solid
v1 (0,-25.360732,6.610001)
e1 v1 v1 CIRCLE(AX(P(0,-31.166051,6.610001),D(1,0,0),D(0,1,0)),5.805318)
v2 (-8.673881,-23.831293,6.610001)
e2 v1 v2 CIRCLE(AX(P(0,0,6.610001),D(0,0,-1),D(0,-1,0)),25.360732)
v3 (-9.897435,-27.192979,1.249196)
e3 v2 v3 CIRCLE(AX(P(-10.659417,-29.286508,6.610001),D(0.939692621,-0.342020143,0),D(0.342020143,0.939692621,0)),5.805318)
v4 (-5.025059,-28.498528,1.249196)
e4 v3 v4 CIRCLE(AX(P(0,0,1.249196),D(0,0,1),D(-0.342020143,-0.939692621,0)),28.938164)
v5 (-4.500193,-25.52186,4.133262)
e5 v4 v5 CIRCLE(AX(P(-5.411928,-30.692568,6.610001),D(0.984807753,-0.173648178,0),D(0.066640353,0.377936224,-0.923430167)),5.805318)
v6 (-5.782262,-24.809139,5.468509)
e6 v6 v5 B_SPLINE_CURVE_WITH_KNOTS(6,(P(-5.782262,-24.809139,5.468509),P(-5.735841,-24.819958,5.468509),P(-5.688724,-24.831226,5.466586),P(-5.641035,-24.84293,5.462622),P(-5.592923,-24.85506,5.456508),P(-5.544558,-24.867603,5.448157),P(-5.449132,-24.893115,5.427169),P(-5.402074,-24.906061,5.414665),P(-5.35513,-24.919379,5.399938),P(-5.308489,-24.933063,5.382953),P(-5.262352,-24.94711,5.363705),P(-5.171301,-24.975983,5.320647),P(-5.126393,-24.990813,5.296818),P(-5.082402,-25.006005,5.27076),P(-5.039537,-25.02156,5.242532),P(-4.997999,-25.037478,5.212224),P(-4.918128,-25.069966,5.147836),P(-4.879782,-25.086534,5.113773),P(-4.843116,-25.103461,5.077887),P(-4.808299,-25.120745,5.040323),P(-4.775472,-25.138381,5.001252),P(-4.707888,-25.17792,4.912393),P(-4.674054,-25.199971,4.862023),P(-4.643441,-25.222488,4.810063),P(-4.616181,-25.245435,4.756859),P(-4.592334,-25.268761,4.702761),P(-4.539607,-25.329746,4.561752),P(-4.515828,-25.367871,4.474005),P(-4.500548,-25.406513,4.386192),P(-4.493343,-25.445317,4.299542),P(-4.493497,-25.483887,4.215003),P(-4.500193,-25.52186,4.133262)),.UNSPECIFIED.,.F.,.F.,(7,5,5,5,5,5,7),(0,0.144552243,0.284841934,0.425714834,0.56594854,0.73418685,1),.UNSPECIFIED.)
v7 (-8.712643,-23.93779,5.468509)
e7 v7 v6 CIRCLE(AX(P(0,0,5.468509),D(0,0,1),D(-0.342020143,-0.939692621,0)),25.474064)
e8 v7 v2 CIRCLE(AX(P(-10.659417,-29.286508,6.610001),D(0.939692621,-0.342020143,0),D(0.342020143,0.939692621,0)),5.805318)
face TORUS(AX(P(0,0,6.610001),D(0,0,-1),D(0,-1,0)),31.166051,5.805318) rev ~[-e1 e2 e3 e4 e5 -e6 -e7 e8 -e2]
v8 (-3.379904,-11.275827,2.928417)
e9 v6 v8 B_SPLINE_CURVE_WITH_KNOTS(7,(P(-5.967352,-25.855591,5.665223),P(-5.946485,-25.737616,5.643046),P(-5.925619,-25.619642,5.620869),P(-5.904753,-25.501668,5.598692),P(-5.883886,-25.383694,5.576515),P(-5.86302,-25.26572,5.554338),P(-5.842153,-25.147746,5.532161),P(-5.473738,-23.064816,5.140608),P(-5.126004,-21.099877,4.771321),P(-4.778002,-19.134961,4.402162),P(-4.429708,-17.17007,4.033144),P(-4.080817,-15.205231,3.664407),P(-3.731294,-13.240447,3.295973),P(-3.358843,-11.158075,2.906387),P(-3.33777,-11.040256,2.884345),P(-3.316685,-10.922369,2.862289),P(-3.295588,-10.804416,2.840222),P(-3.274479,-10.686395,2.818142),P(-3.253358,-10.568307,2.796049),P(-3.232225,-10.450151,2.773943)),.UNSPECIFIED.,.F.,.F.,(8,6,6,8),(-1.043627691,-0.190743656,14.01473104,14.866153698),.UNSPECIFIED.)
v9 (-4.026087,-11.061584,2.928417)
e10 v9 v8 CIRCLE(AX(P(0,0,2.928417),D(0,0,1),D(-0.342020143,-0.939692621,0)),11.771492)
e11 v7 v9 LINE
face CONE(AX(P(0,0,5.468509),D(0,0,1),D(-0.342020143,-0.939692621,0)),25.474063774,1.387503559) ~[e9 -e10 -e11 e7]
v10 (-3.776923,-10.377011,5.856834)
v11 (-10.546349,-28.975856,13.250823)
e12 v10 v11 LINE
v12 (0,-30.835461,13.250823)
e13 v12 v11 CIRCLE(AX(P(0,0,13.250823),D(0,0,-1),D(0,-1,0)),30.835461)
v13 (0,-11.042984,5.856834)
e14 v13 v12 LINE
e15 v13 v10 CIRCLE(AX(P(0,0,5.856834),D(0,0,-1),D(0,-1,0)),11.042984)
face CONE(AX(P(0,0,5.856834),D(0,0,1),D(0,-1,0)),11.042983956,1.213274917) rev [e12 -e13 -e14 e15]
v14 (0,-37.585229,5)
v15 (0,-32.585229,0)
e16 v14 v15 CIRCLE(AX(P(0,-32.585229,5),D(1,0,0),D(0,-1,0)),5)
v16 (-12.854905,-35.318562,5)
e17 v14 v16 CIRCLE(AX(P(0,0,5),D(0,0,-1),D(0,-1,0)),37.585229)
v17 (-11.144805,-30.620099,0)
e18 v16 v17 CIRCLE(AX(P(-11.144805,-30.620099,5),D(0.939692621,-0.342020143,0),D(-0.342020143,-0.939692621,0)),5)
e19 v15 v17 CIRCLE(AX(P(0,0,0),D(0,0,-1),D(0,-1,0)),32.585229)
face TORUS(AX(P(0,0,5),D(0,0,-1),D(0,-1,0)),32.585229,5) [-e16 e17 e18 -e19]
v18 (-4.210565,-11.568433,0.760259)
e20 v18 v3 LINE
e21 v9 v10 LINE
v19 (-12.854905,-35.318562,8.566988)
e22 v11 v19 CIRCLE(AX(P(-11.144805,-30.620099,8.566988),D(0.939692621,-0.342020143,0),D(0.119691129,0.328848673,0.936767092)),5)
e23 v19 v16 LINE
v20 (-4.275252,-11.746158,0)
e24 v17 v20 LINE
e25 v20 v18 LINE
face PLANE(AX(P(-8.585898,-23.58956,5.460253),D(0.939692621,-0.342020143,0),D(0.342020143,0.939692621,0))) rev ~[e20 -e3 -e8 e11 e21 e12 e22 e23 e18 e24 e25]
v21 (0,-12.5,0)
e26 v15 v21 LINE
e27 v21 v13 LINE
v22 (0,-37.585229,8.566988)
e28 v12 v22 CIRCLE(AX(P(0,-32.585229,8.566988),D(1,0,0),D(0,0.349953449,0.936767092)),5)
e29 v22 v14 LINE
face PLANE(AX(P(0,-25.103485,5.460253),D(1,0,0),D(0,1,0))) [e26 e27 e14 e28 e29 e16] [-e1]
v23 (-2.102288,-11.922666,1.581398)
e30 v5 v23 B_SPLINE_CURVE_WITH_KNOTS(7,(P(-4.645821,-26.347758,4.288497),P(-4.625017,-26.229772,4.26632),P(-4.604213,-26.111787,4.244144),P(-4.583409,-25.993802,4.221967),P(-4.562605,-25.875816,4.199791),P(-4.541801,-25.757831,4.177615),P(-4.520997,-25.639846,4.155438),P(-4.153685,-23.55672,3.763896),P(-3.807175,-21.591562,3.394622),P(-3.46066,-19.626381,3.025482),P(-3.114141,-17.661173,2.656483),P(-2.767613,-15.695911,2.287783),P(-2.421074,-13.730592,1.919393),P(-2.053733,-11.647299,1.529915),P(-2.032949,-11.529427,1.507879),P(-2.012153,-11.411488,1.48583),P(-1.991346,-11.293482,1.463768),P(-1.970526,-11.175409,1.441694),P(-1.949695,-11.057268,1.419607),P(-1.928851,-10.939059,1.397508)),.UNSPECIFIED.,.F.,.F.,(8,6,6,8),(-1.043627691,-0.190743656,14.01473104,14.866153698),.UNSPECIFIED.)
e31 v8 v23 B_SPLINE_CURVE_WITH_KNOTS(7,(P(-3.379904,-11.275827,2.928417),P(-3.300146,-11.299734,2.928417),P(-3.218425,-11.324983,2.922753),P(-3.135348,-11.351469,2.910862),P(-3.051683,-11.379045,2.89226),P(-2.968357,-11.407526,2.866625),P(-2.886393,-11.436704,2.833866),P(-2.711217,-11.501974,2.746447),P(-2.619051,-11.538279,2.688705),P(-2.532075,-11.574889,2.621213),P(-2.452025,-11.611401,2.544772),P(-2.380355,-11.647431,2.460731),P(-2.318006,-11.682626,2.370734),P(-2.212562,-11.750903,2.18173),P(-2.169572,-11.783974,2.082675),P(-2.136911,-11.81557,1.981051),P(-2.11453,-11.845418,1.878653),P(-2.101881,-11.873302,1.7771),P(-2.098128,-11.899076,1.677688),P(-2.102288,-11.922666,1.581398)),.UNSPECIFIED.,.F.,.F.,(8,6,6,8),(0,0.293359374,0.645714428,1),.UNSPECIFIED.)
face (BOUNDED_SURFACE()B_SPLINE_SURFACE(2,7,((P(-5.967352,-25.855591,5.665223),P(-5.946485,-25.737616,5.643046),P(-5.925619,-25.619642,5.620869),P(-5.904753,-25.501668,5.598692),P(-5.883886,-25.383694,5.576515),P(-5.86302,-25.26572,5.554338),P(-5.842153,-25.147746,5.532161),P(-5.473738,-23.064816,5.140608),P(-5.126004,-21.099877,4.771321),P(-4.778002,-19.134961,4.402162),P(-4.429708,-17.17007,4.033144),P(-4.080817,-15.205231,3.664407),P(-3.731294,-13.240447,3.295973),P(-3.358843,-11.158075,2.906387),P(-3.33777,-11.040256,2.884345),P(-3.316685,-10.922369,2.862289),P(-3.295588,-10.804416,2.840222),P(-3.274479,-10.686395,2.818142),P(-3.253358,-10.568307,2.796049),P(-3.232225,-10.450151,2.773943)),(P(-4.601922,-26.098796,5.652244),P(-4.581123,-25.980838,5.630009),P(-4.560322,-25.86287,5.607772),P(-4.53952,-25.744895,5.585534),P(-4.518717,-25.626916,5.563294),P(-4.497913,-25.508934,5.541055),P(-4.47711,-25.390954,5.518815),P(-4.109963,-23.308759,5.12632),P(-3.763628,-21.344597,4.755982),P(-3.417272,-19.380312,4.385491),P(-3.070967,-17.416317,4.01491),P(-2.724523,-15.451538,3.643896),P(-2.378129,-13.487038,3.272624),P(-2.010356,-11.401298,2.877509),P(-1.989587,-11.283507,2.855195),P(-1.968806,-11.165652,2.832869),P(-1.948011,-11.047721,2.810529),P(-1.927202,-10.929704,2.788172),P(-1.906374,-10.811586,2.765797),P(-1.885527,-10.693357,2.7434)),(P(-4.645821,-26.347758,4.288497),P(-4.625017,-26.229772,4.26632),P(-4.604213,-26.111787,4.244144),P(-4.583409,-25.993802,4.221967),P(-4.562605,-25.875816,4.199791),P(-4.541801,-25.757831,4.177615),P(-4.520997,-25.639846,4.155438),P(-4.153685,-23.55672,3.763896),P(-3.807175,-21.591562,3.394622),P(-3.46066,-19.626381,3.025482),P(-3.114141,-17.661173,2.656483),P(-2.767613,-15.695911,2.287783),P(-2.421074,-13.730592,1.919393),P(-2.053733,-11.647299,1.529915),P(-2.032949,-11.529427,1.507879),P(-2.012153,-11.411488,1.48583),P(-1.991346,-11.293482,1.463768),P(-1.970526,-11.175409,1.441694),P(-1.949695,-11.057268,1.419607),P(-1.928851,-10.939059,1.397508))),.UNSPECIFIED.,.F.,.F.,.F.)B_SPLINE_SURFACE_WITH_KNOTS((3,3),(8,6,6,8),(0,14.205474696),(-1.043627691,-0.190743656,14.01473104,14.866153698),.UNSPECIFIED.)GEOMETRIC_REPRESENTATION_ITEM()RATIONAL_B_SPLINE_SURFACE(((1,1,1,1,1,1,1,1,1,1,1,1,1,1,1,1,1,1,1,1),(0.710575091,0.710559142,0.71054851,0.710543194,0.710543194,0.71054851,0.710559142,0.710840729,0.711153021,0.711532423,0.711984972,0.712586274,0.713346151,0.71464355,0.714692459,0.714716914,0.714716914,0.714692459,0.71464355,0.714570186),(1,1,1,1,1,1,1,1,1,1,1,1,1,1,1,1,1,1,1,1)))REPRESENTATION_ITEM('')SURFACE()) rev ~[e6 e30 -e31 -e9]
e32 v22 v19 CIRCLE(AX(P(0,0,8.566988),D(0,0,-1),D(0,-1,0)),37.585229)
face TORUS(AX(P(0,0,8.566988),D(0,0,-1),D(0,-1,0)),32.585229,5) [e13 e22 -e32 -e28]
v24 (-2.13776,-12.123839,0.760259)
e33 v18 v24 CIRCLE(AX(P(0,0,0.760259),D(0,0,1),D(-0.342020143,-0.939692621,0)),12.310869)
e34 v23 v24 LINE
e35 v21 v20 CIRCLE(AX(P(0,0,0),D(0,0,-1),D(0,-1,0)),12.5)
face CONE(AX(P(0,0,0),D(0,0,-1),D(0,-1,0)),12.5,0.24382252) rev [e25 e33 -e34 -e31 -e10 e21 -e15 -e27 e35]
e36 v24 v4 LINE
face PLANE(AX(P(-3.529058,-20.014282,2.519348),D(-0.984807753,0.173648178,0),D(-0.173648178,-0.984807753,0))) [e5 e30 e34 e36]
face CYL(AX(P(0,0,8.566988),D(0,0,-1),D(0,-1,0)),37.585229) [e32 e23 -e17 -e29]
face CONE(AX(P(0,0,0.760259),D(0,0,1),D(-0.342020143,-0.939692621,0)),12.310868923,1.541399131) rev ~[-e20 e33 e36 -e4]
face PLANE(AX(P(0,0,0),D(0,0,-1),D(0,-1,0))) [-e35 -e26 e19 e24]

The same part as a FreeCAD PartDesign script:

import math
import FreeCAD as App
import Part
import Sketcher

V = App.Vector
Q = App.Units.Quantity


def edges_at(feature, points):
    """Names of the edges that pass closest to the given points."""
    edges = feature.Shape.Edges
    near = lambda p: min(range(len(edges)), key=lambda i: edges[i].distToShape(Part.Vertex(*p))[0])
    return sorted({f"Edge{near(p) + 1}" for p in points})

doc = App.newDocument("Part")
params = doc.addObject("Spreadsheet::Sheet", "Params")
for row, (alias, value) in enumerate([
    ("sketch1_radius", "5 mm"),
    ("revolution_angle", "20 deg"),
    ("groove_angle", "10 deg"),
    ("fillet_radius", "1.400244 mm"),
], start=1):
    params.set(f"A{row}", alias)
    params.set(f"B{row}", "=" + value)
    params.setAlias(f"B{row}", alias)

body = doc.addObject("PartDesign::Body", "Body")

# Sketch on YZ plane
sketch1 = doc.addObject("Sketcher::SketchObject", "Sketch")
body.addObject(sketch1)
sketch1.AttachmentSupport = (doc.YZ_Plane, [""])
sketch1.MapMode = "FlatFace"
sketch1.addGeometry(Part.LineSegment(V(-32.6, 0, 0), V(-12.5, 0, 0)), False)
sketch1.addGeometry(Part.LineSegment(V(-12.5, 0, 0), V(-11, 5.9, 0)), False)
sketch1.addGeometry(Part.LineSegment(V(-11, 5.9, 0), V(-30.8, 13.3, 0)), False)
sketch1.addGeometry(Part.ArcOfCircle(Part.Circle(V(-32.6, 8.6, 0), V(0, 0, 1), 5), math.radians(70), math.radians(180)), False)
sketch1.addGeometry(Part.LineSegment(V(-37.6, 8.6, 0), V(-37.6, 5, 0)), False)
sketch1.addGeometry(Part.ArcOfCircle(Part.Circle(V(-32.6, 5, 0), V(0, 0, 1), 5), math.radians(180), math.radians(270)), False)
sketch1.addGeometry(Part.Circle(V(-31.2, 6.6, 0), V(0, 0, 1), 5.8), False)
sketch1.addConstraint(Sketcher.Constraint("Coincident", 0, 2, 1, 1))
sketch1.addConstraint(Sketcher.Constraint("Coincident", 1, 2, 2, 1))
sketch1.addConstraint(Sketcher.Constraint("Tangent", 2, 2, 3, 1))
sketch1.addConstraint(Sketcher.Constraint("Tangent", 3, 2, 4, 1))
sketch1.addConstraint(Sketcher.Constraint("Tangent", 4, 2, 5, 1))
sketch1.addConstraint(Sketcher.Constraint("Tangent", 5, 2, 0, 1))
sketch1.addConstraint(Sketcher.Constraint("Horizontal", 0))
sketch1.addConstraint(Sketcher.Constraint("Vertical", 4))
sketch1.addConstraint(Sketcher.Constraint("Equal", 3, 5))
sketch1.addConstraint(Sketcher.Constraint("PointOnObject", 0, 2, -1))
sketch1.addConstraint(Sketcher.Constraint("Radius", 3, 5.0))
sketch1.addConstraint(Sketcher.Constraint("DistanceX", 0, 2, -1, 1, 12.5))
sketch1.addConstraint(Sketcher.Constraint("Angle", 1, Q("76.029999 deg")))
sketch1.addConstraint(Sketcher.Constraint("DistanceY", -1, 1, 6, 3, 6.610001))
sketch1.addConstraint(Sketcher.Constraint("Diameter", 6, 11.610636))
sketch1.addConstraint(Sketcher.Constraint("DistanceX", 0, 1, 0, 2, 20.085229))
sketch1.addConstraint(Sketcher.Constraint("DistanceY", 4, 2, 4, 1, 3.566988))
sketch1.addConstraint(Sketcher.Constraint("DistanceX", 6, 3, -1, 1, 31.166051))
sketch1.addConstraint(Sketcher.Constraint("DistanceX", 2, 2, -1, 1, 30.835461))
sketch1.setExpression("Constraints[10]", "Params.sketch1_radius")
revolution = doc.addObject("PartDesign::Revolution", "Revolution")
body.addObject(revolution)
revolution.Profile = sketch1
revolution.ReferenceAxis = (sketch1, ["V_Axis"])
revolution.setExpression("Angle", "Params.revolution_angle")
revolution.Reversed = True

# Sketch on an angled plane
sketch2 = doc.addObject("Sketcher::SketchObject", "Sketch001")
body.addObject(sketch2)
sketch2.Placement = App.Placement(V(0, 0, 0), App.Rotation(V(-0.342020143, -0.939692621, 0), V(0, 0, 1), V(-0.939692621, 0.342020143, 0), "ZXY"))
sketch2.addGeometry(Part.LineSegment(V(12.3, 0.8, 0), V(28.9, 1.2, 0)), False)
sketch2.addGeometry(Part.ArcOfCircle(Part.Circle(V(31.2, 6.6, 0), V(0, 0, 1), 5.8), math.radians(-169), math.radians(-113)), False)
sketch2.addGeometry(Part.LineSegment(V(25.5, 5.5, 0), V(11.8, 2.9, 0)), False)
sketch2.addGeometry(Part.LineSegment(V(11.8, 2.9, 0), V(12.3, 0.8, 0)), False)
sketch2.addConstraint(Sketcher.Constraint("Coincident", 0, 2, 1, 2))
sketch2.addConstraint(Sketcher.Constraint("Coincident", 1, 1, 2, 1))
sketch2.addConstraint(Sketcher.Constraint("Coincident", 2, 2, 3, 1))
sketch2.addConstraint(Sketcher.Constraint("Coincident", 3, 2, 0, 1))
sketch2.addConstraint(Sketcher.Constraint("Angle", 3, Q("-76.029999 deg")))
sketch2.addConstraint(Sketcher.Constraint("DistanceY", -1, 1, 1, 3, 6.610001))
sketch2.addConstraint(Sketcher.Constraint("Radius", 1, 5.805318))
sketch2.addConstraint(Sketcher.Constraint("DistanceX", 1, 1, 0, 2, 3.4641))
sketch2.addConstraint(Sketcher.Constraint("DistanceX", -1, 1, 1, 3, 31.166051))
sketch2.addConstraint(Sketcher.Constraint("DistanceY", -1, 1, 1, 1, 5.468509))
sketch2.addConstraint(Sketcher.Constraint("DistanceX", -1, 1, 2, 2, 11.771492))
sketch2.addConstraint(Sketcher.Constraint("DistanceX", -1, 1, 3, 2, 12.310869))
sketch2.addConstraint(Sketcher.Constraint("DistanceY", -1, 1, 3, 2, 0.760259))
groove = doc.addObject("PartDesign::Groove", "Groove")
body.addObject(groove)
groove.Profile = sketch2
groove.ReferenceAxis = (sketch2, ["V_Axis"])
groove.setExpression("Angle", "Params.groove_angle")
doc.recompute()

fillet = doc.addObject("PartDesign::Fillet", "Fillet")
body.addObject(fillet)
fillet.Base = (groove, edges_at(groove, [(-3.234, -18.34, 4.198)]))
fillet.setExpression("Radius", "Params.fillet_radius")

doc.recompute()
